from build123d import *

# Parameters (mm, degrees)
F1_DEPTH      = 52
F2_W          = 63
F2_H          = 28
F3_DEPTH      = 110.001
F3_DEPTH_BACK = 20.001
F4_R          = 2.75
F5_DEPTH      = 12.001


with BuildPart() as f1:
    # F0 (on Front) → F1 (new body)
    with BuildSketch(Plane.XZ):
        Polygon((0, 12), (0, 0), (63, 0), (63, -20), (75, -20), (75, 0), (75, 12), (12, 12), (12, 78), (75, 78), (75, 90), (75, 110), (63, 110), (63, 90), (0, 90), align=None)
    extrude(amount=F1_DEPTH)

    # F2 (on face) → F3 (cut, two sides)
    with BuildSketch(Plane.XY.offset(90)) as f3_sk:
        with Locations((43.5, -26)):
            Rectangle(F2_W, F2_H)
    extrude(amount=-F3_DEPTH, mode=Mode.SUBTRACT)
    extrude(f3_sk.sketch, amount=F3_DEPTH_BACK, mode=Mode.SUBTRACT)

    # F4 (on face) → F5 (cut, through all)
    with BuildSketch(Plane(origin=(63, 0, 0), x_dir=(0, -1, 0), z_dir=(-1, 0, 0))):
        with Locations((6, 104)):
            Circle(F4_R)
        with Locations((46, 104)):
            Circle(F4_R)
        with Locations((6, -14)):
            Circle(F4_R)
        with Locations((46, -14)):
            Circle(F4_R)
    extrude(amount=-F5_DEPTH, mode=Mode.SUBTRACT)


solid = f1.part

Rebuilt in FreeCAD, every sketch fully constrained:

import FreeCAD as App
import Part
import Sketcher
from FreeCAD import Vector

doc = App.newDocument("Part")
params = doc.addObject("Spreadsheet::Sheet", "Params")
for row, (alias, value) in enumerate([
    ("sketch1_width", "63 mm"),
    ("sketch1_width2", "12 mm"),
    ("sketch1_height", "20 mm"),
    ("sketch1_height2", "32 mm"),
    ("sketch1_height3", "66 mm"),
    ("pad1_length", "52 mm"),
    ("sketch2_width", "63 mm"),
    ("sketch2_height", "28 mm"),
    ("sketch3_diameter", "5.5 mm"),
], start=1):
    params.set(f"A{row}", alias)
    params.set(f"B{row}", "=" + value)
    params.setAlias(f"B{row}", alias)

body = doc.addObject("PartDesign::Body", "Body")

# Sketch on XZ plane
sketch1 = body.newObject("Sketcher::SketchObject", "Sketch")
sketch1.AttachmentSupport = (doc.getObject("XZ_Plane"), [""])
sketch1.MapMode = "FlatFace"
sketch1.addGeometry([
    Part.LineSegment(Vector(0, 0, 0), Vector(63, 0, 0)),  # 0
    Part.LineSegment(Vector(63, 0, 0), Vector(63, -20, 0)),  # 1
    Part.LineSegment(Vector(63, -20, 0), Vector(75, -20, 0)),  # 2
    Part.LineSegment(Vector(75, -20, 0), Vector(75, 12, 0)),  # 3
    Part.LineSegment(Vector(75, 12, 0), Vector(12, 12, 0)),  # 4
    Part.LineSegment(Vector(12, 12, 0), Vector(12, 78, 0)),  # 5
    Part.LineSegment(Vector(12, 78, 0), Vector(75, 78, 0)),  # 6
    Part.LineSegment(Vector(75, 78, 0), Vector(75, 110, 0)),  # 7
    Part.LineSegment(Vector(75, 110, 0), Vector(63, 110, 0)),  # 8
    Part.LineSegment(Vector(63, 110, 0), Vector(63, 90, 0)),  # 9
    Part.LineSegment(Vector(63, 90, 0), Vector(0, 90, 0)),  # 10
    Part.LineSegment(Vector(0, 90, 0), Vector(0, 0, 0)),  # 11
], False)
sketch1.addConstraint([
    Sketcher.Constraint("Coincident", 0, 2, 1, 1),
    Sketcher.Constraint("Coincident", 1, 2, 2, 1),
    Sketcher.Constraint("Coincident", 2, 2, 3, 1),
    Sketcher.Constraint("Coincident", 3, 2, 4, 1),
    Sketcher.Constraint("Coincident", 4, 2, 5, 1),
    Sketcher.Constraint("Coincident", 5, 2, 6, 1),
    Sketcher.Constraint("Coincident", 6, 2, 7, 1),
    Sketcher.Constraint("Coincident", 7, 2, 8, 1),
    Sketcher.Constraint("Coincident", 8, 2, 9, 1),
    Sketcher.Constraint("Coincident", 9, 2, 10, 1),
    Sketcher.Constraint("Coincident", 10, 2, 11, 1),
    Sketcher.Constraint("Coincident", 11, 2, 0, 1),
    Sketcher.Constraint("Horizontal", 0),
    Sketcher.Constraint("Vertical", 1),
    Sketcher.Constraint("Horizontal", 2),
    Sketcher.Constraint("Vertical", 3),
    Sketcher.Constraint("Horizontal", 4),
    Sketcher.Constraint("Vertical", 5),
    Sketcher.Constraint("Horizontal", 6),
    Sketcher.Constraint("Vertical", 7),
    Sketcher.Constraint("Horizontal", 8),
    Sketcher.Constraint("Vertical", 9),
    Sketcher.Constraint("Horizontal", 10),
    Sketcher.Constraint("Vertical", 11),
    Sketcher.Constraint("Coincident", 11, 2, -1, 1),
    Sketcher.Constraint("Vertical", 3, 2, 6, 2),
    Sketcher.Constraint("Vertical", 1, 2, 8, 2),
    Sketcher.Constraint("Equal", 0, 4),
    Sketcher.Constraint("Equal", 3, 7),
    Sketcher.Constraint("Equal", 1, 9),
    Sketcher.Constraint("DistanceX", 0, 1, 0, 2, 63.0),
    Sketcher.Constraint("DistanceX", 2, 1, 2, 2, 12.0),
    Sketcher.Constraint("DistanceY", 1, 2, 1, 1, 20.0),
    Sketcher.Constraint("DistanceY", 3, 1, 3, 2, 32.0),
    Sketcher.Constraint("DistanceY", 5, 1, 5, 2, 66.0),
])
sketch1.setExpression("Constraints[30]", "Params.sketch1_width")
sketch1.setExpression("Constraints[31]", "Params.sketch1_width2")
sketch1.setExpression("Constraints[32]", "Params.sketch1_height")
sketch1.setExpression("Constraints[33]", "Params.sketch1_height2")
sketch1.setExpression("Constraints[34]", "Params.sketch1_height3")
pad1 = body.newObject("PartDesign::Pad", "Pad")
pad1.Profile = sketch1
pad1.setExpression("Length", "Params.pad1_length")

# Sketch on XY plane
sketch2 = body.newObject("Sketcher::SketchObject", "Sketch001")
sketch2.AttachmentSupport = (doc.getObject("XY_Plane"), [""])
sketch2.MapMode = "FlatFace"
sketch2.AttachmentOffset = App.Placement(Vector(0, 0, 90), App.Rotation())
sketch2.addGeometry([
    Part.LineSegment(Vector(12, -12, 0), Vector(12, -40, 0)),
    Part.LineSegment(Vector(12, -40, 0), Vector(75, -40, 0)),
    Part.LineSegment(Vector(75, -40, 0), Vector(75, -12, 0)),
    Part.LineSegment(Vector(75, -12, 0), Vector(12, -12, 0)),
], False)
sketch2.addConstraint([
    Sketcher.Constraint("Coincident", 0, 2, 1, 1),
    Sketcher.Constraint("Coincident", 1, 2, 2, 1),
    Sketcher.Constraint("Coincident", 2, 2, 3, 1),
    Sketcher.Constraint("Coincident", 3, 2, 0, 1),
    Sketcher.Constraint("Vertical", 0),
    Sketcher.Constraint("Horizontal", 1),
    Sketcher.Constraint("Vertical", 2),
    Sketcher.Constraint("Horizontal", 3),
    Sketcher.Constraint("DistanceX", 1, 1, 1, 2, 63.0),
    Sketcher.Constraint("DistanceY", 0, 2, 0, 1, 28.0),
    Sketcher.Constraint("DistanceX", -1, 1, 0, 2, 12.0),
    Sketcher.Constraint("DistanceY", 0, 2, -1, 1, 40.0),
])
sketch2.setExpression("Constraints[8]", "Params.sketch2_width")
sketch2.setExpression("Constraints[9]", "Params.sketch2_height")
pocket1 = body.newObject("PartDesign::Pocket", "Pocket")
pocket1.Profile = sketch2
pocket1.Type = "ThroughAll"
pocket1.Midplane = True

# Sketch on YZ plane
sketch3 = body.newObject("Sketcher::SketchObject", "Sketch002")
sketch3.AttachmentSupport = (doc.getObject("YZ_Plane"), [""])
sketch3.MapMode = "FlatFace"
sketch3.AttachmentOffset = App.Placement(Vector(0, 0, 63), App.Rotation())
sketch3.addGeometry([
    Part.Circle(Vector(-6, 104, 0), Vector(0, 0, 1), 2.8),
    Part.Circle(Vector(-46, 104, 0), Vector(0, 0, 1), 2.8),
    Part.Circle(Vector(-6, -14, 0), Vector(0, 0, 1), 2.8),
    Part.Circle(Vector(-46, -14, 0), Vector(0, 0, 1), 2.8),
], False)
sketch3.addConstraint([
    Sketcher.Constraint("Equal", 0, 1),
    Sketcher.Constraint("Equal", 1, 2),
    Sketcher.Constraint("Equal", 2, 3),
    Sketcher.Constraint("Horizontal", 0, 3, 1, 3),
    Sketcher.Constraint("Horizontal", 2, 3, 3, 3),
    Sketcher.Constraint("Vertical", 0, 3, 2, 3),
    Sketcher.Constraint("Vertical", 1, 3, 3, 3),
    Sketcher.Constraint("Diameter", 0, 5.5),
    Sketcher.Constraint("DistanceX", 0, 3, -1, 1, 6.0),
    Sketcher.Constraint("DistanceY", -1, 1, 0, 3, 104.0),
    Sketcher.Constraint("DistanceX", 1, 3, -1, 1, 46.0),
    Sketcher.Constraint("DistanceY", 2, 3, -1, 1, 14.0),
])
sketch3.setExpression("Constraints[7]", "Params.sketch3_diameter")
pocket2 = body.newObject("PartDesign::Pocket", "Pocket001")
pocket2.Profile = sketch3
pocket2.Type = "ThroughAll"
pocket2.Reversed = True

doc.recompute()
